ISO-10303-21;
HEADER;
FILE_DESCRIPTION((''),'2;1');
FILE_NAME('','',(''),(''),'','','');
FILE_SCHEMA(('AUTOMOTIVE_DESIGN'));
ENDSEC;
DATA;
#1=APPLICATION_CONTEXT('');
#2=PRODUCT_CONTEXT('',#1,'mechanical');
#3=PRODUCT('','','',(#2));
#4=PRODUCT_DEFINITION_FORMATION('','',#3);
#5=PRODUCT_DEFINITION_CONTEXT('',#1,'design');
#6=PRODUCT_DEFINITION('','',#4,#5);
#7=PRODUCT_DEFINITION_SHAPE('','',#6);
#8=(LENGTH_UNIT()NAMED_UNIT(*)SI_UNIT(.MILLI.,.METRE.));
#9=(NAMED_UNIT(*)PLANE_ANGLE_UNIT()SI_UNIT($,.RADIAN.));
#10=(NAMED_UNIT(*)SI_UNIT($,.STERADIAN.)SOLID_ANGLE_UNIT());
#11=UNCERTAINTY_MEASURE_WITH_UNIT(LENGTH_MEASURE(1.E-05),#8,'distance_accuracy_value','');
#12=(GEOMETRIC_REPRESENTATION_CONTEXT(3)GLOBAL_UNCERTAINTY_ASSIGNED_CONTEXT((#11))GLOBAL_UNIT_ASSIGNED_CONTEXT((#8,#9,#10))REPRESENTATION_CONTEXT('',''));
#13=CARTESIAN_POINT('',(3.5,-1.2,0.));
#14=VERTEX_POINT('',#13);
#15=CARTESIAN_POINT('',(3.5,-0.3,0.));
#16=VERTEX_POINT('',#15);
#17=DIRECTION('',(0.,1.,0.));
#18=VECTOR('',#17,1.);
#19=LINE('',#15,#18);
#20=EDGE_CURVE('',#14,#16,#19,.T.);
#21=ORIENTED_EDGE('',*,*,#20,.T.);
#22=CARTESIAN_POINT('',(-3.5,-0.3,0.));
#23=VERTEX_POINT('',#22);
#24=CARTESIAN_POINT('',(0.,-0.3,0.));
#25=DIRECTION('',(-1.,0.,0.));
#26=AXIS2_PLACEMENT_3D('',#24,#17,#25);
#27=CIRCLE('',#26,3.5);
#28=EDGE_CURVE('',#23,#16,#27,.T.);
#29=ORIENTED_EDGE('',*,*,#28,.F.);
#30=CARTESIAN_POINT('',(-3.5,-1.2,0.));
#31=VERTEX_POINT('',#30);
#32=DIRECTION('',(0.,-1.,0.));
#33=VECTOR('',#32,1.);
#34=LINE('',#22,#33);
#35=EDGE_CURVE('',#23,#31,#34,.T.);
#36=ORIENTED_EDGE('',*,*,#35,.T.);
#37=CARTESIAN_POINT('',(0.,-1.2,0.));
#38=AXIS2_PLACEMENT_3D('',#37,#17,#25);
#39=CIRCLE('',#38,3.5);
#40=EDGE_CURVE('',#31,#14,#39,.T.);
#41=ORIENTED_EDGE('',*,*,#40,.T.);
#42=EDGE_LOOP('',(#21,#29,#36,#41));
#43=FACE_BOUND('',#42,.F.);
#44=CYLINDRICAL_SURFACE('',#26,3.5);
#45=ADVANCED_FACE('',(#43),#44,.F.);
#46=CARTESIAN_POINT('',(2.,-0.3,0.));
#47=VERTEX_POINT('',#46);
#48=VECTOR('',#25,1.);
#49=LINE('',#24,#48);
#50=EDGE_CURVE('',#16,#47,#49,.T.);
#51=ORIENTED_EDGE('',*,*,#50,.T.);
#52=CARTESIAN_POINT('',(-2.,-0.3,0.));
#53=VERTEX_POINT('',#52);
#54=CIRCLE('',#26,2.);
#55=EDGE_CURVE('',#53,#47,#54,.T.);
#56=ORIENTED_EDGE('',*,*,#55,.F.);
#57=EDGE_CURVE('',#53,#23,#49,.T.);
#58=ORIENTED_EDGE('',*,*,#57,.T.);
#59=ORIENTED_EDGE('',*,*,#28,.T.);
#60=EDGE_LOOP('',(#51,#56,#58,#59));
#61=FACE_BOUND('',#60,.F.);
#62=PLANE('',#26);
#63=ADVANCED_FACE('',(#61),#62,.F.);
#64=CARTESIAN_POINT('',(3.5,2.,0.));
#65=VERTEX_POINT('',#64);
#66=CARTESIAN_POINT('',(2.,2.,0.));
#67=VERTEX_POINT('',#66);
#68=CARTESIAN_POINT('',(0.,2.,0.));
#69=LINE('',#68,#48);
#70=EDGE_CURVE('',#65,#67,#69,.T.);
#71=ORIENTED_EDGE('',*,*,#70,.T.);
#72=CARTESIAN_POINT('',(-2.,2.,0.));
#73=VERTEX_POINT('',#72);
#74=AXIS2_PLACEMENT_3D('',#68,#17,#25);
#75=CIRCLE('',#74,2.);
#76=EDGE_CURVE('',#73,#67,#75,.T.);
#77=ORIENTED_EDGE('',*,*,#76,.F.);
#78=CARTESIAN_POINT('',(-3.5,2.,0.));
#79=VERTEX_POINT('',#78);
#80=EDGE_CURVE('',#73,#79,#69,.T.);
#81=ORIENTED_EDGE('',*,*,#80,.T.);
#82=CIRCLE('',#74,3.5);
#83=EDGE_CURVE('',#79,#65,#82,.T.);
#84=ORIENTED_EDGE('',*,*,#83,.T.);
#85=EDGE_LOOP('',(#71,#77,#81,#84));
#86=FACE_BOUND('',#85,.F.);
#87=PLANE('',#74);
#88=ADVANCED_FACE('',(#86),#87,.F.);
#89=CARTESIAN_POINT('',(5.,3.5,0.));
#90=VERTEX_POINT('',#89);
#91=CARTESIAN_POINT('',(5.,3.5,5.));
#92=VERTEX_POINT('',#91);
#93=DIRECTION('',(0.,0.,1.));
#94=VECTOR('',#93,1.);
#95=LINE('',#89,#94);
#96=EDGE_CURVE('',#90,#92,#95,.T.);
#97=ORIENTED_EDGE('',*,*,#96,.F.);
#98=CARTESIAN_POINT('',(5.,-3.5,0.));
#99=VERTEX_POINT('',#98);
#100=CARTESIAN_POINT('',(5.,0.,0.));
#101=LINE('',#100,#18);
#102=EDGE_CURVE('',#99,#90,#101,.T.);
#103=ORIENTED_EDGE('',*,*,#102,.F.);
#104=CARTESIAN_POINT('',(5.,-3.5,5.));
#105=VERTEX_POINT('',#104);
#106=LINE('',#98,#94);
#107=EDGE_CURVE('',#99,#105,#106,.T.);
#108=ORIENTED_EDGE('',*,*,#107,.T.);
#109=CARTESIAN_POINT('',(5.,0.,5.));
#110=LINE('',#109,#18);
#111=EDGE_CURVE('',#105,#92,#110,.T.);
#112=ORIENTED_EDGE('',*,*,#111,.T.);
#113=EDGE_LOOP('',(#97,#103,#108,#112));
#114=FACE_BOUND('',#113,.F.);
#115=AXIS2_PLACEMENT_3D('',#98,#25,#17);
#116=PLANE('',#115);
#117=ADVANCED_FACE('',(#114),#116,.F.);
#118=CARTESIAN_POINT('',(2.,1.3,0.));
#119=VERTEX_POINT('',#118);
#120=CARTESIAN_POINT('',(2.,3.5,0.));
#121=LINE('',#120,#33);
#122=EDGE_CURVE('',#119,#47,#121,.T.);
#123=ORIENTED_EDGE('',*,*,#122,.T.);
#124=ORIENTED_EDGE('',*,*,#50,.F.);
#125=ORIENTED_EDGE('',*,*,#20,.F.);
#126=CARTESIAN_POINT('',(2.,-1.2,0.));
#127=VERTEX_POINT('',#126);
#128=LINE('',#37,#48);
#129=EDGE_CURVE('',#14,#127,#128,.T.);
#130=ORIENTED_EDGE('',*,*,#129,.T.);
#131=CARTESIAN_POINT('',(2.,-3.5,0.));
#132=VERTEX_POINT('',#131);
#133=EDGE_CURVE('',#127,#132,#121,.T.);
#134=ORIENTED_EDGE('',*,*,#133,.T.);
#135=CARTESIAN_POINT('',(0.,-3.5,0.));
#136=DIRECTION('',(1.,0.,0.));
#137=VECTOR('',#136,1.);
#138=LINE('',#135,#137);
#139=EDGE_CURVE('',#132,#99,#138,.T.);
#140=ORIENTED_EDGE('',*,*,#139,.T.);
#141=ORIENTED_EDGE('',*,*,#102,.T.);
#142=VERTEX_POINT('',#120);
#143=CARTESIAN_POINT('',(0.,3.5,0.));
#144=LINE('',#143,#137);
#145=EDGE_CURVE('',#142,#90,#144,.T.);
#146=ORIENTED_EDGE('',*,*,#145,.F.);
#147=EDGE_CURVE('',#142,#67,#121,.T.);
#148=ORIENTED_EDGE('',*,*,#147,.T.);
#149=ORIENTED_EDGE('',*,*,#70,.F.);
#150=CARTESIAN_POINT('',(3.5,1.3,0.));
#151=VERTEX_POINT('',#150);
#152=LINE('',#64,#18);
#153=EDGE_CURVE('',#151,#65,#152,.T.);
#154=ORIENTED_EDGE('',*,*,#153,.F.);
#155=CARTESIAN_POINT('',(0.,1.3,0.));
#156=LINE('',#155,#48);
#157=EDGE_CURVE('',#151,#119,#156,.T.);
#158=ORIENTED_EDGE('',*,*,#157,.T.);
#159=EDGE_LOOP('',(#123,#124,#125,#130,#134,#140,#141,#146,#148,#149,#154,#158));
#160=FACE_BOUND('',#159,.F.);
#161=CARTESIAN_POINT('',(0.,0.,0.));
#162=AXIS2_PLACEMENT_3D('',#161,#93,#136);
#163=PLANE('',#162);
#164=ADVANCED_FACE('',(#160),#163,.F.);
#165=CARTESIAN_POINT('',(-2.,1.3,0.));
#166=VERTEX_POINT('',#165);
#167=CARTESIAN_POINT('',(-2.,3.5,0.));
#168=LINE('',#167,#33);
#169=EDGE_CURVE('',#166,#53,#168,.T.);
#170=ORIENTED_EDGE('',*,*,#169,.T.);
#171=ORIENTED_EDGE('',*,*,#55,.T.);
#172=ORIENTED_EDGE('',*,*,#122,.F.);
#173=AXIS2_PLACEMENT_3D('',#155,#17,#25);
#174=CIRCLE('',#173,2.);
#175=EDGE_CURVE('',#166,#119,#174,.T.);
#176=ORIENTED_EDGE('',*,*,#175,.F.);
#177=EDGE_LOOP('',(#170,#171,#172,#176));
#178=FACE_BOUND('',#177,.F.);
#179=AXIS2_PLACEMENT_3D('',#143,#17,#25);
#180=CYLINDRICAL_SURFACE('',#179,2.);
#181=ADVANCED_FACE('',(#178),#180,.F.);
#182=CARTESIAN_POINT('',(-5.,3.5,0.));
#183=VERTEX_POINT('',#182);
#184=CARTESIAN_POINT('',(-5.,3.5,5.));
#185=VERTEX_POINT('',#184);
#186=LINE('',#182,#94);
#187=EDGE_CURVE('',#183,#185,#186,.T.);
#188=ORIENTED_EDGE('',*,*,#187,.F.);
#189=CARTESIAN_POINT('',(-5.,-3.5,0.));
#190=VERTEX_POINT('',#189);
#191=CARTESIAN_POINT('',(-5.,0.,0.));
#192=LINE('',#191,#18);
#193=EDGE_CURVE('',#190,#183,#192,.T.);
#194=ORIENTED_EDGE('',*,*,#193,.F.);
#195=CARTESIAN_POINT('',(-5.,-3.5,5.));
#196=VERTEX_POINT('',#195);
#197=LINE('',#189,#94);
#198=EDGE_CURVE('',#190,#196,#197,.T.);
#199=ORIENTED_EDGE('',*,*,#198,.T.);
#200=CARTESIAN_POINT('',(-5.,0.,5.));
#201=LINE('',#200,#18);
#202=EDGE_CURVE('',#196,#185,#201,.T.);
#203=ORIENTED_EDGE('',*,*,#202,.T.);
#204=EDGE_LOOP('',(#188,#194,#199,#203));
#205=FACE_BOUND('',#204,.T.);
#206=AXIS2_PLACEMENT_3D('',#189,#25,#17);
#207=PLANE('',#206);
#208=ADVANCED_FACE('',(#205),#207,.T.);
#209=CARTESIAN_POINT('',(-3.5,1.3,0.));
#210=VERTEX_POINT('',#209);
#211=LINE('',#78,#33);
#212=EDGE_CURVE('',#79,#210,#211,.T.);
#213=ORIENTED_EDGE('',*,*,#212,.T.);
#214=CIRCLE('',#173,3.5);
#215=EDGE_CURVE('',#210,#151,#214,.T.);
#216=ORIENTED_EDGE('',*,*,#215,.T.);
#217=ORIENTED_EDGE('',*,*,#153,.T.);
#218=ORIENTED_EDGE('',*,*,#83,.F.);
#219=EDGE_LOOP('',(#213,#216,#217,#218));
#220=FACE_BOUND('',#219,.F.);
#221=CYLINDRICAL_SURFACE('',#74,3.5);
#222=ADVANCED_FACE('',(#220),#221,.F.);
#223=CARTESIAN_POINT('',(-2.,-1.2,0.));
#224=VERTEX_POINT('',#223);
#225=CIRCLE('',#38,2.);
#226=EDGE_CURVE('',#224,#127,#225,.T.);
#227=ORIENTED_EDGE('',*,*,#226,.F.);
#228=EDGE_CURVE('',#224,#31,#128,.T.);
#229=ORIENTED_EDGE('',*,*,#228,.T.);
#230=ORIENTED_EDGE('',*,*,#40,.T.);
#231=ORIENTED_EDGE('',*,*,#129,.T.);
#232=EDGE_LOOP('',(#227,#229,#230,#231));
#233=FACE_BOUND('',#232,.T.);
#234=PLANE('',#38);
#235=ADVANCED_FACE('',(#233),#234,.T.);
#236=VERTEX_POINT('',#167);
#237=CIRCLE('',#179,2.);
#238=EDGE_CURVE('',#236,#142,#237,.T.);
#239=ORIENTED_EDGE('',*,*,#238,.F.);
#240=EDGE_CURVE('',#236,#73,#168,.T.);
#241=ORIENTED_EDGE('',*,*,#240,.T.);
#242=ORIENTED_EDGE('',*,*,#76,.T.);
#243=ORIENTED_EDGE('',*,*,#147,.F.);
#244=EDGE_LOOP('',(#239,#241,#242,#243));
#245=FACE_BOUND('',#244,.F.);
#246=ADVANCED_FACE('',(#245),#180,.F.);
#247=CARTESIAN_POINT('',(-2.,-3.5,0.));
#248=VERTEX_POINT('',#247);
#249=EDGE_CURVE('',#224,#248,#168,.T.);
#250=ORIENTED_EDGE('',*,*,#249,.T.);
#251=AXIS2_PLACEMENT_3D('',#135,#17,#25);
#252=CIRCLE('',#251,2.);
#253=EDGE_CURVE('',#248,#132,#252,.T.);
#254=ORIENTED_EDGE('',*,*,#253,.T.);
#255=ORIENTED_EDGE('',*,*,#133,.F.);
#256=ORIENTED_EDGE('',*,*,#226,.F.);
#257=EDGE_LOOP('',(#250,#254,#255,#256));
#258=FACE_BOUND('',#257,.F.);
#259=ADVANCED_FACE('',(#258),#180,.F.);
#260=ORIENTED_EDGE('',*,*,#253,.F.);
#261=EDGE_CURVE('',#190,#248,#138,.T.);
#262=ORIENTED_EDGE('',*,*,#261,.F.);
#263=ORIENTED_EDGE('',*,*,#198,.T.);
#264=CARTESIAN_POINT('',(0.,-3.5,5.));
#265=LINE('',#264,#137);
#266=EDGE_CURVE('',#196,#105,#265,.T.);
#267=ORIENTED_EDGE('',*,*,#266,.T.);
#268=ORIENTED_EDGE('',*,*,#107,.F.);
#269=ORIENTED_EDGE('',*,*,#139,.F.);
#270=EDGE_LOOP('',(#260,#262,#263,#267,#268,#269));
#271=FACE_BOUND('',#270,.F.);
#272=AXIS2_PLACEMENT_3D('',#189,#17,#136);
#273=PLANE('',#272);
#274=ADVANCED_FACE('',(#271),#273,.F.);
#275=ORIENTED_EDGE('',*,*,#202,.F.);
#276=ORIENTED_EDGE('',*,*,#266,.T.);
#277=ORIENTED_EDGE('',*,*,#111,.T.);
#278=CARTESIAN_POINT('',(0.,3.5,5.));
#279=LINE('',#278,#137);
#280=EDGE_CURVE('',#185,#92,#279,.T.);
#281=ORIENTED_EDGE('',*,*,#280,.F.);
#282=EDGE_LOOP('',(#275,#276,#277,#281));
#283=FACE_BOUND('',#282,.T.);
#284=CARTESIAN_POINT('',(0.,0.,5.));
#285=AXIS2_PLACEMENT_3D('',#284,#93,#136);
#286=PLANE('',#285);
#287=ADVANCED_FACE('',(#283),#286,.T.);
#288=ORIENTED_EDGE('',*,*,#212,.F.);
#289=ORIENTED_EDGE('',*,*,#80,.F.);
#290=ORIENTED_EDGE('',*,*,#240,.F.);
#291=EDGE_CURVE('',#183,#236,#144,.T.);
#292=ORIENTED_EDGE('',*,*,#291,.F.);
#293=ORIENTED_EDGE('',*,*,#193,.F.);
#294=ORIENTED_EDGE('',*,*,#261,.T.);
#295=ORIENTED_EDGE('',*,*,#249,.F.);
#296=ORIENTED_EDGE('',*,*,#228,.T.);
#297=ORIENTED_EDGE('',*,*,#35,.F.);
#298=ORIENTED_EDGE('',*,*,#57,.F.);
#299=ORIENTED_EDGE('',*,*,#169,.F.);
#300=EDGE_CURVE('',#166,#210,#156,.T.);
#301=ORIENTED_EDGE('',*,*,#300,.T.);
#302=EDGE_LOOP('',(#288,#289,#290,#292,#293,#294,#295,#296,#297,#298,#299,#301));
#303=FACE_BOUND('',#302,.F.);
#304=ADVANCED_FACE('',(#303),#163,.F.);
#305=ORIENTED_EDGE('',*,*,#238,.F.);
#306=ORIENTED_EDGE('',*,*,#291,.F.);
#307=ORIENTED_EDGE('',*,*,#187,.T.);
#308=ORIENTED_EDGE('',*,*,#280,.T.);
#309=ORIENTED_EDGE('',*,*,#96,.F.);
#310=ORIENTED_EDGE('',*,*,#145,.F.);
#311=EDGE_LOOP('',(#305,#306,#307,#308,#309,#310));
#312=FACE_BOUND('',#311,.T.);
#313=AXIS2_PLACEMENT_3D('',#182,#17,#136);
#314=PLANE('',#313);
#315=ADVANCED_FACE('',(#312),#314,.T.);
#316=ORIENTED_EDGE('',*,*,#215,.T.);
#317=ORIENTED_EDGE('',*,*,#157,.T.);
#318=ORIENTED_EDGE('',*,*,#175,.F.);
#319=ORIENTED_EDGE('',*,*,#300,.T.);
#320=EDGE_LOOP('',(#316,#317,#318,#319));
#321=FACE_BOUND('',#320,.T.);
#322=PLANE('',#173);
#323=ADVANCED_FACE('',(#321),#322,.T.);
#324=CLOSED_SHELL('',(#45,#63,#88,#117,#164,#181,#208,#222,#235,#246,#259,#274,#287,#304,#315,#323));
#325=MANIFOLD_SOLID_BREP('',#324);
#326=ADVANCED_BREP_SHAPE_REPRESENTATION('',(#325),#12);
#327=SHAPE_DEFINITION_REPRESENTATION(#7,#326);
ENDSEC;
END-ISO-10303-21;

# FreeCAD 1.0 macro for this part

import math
import FreeCAD as App
import Part
import Sketcher
from FreeCAD import Vector
Q = App.Units.Quantity

doc = App.newDocument("Part")
body = doc.addObject("PartDesign::Body", "Body")

sketch1 = body.newObject("Sketcher::SketchObject", "Sketch")
sketch1.AttachmentSupport = (doc.getObject("XY_Plane"), [""])
sketch1.MapMode = "FlatFace"
sketch1.addGeometry([
    Part.LineSegment(Vector(-5, 4, 0), Vector(-5, -4, 0)),
    Part.LineSegment(Vector(-5, -4, 0), Vector(5, -4, 0)),
    Part.LineSegment(Vector(5, -4, 0), Vector(5, 4, 0)),
    Part.LineSegment(Vector(5, 4, 0), Vector(-5, 4, 0)),
], False)
sketch1.addConstraint([
    Sketcher.Constraint("Coincident", 0, 2, 1, 1),
    Sketcher.Constraint("Coincident", 1, 2, 2, 1),
    Sketcher.Constraint("Coincident", 2, 2, 3, 1),
    Sketcher.Constraint("Coincident", 3, 2, 0, 1),
    Sketcher.Constraint("Vertical", 0),
    Sketcher.Constraint("Horizontal", 1),
    Sketcher.Constraint("Vertical", 2),
    Sketcher.Constraint("Horizontal", 3),
    Sketcher.Constraint("Symmetric", 0, 2, 2, 2, -1, 1),
    Sketcher.Constraint("DistanceX", 1, 1, 1, 2, Q("10 mm")),
    Sketcher.Constraint("DistanceY", 0, 2, 0, 1, Q("7 mm")),
])
pad1 = body.newObject("PartDesign::Pad", "Pad")
pad1.Profile = sketch1
pad1.Length = 5

sketch2 = body.newObject("Sketcher::SketchObject", "Sketch001")
sketch2.AttachmentSupport = (doc.getObject("XZ_Plane"), [""])
sketch2.MapMode = "FlatFace"
sketch2.AttachmentOffset = App.Placement(Vector(0, 0, -3.5), App.Rotation())
sketch2.addGeometry([
    Part.LineSegment(Vector(2, 0, 0), Vector(-2, 0, 0)),
    Part.ArcOfCircle(Part.Circle(Vector(0, 0, 0), Vector(0, 0, 1), 2), math.radians(0), math.radians(180)),
], False)
sketch2.addConstraint([
    Sketcher.Constraint("Coincident", 0, 1, 1, 1),
    Sketcher.Constraint("Coincident", 1, 2, 0, 2),
    Sketcher.Constraint("Horizontal", 0),
    Sketcher.Constraint("Coincident", 1, 3, -1, 1),
    Sketcher.Constraint("PointOnObject", 0, 1, -1),
    Sketcher.Constraint("Radius", 1, Q("2 mm")),
])
pocket1 = body.newObject("PartDesign::Pocket", "Pocket")
pocket1.Profile = sketch2
pocket1.Type = "ThroughAll"
pocket1.Reversed = True

sketch3 = body.newObject("Sketcher::SketchObject", "Sketch002")
sketch3.AttachmentSupport = (doc.getObject("XZ_Plane"), [""])
sketch3.MapMode = "FlatFace"
sketch3.AttachmentOffset = App.Placement(Vector(0, 0, -2), App.Rotation())
sketch3.addGeometry(Part.Circle(Vector(0, 0, 0), Vector(0, 0, 1), 3.5), False)
sketch3.addConstraint([
    Sketcher.Constraint("Coincident", 0, 3, -1, 1),
    Sketcher.Constraint("Diameter", 0, Q("7 mm")),
])
pocket2 = body.newObject("PartDesign::Pocket", "Pocket001")
pocket2.Profile = sketch3
pocket2.Length = 0.7
pocket2.Reversed = True

sketch4 = body.newObject("Sketcher::SketchObject", "Sketch003")
sketch4.AttachmentSupport = (doc.getObject("XZ_Plane"), [""])
sketch4.MapMode = "FlatFace"
sketch4.AttachmentOffset = App.Placement(Vector(0, 0, 0.3), App.Rotation())
sketch4.addGeometry(Part.Circle(Vector(0, 0, 0), Vector(0, 0, 1), 3.5), False)
sketch4.addConstraint([
    Sketcher.Constraint("Coincident", 0, 3, -1, 1),
    Sketcher.Constraint("Diameter", 0, Q("7 mm")),
])
pocket3 = body.newObject("PartDesign::Pocket", "Pocket002")
pocket3.Profile = sketch4
pocket3.Length = 0.9
pocket3.Reversed = True

doc.recompute()
